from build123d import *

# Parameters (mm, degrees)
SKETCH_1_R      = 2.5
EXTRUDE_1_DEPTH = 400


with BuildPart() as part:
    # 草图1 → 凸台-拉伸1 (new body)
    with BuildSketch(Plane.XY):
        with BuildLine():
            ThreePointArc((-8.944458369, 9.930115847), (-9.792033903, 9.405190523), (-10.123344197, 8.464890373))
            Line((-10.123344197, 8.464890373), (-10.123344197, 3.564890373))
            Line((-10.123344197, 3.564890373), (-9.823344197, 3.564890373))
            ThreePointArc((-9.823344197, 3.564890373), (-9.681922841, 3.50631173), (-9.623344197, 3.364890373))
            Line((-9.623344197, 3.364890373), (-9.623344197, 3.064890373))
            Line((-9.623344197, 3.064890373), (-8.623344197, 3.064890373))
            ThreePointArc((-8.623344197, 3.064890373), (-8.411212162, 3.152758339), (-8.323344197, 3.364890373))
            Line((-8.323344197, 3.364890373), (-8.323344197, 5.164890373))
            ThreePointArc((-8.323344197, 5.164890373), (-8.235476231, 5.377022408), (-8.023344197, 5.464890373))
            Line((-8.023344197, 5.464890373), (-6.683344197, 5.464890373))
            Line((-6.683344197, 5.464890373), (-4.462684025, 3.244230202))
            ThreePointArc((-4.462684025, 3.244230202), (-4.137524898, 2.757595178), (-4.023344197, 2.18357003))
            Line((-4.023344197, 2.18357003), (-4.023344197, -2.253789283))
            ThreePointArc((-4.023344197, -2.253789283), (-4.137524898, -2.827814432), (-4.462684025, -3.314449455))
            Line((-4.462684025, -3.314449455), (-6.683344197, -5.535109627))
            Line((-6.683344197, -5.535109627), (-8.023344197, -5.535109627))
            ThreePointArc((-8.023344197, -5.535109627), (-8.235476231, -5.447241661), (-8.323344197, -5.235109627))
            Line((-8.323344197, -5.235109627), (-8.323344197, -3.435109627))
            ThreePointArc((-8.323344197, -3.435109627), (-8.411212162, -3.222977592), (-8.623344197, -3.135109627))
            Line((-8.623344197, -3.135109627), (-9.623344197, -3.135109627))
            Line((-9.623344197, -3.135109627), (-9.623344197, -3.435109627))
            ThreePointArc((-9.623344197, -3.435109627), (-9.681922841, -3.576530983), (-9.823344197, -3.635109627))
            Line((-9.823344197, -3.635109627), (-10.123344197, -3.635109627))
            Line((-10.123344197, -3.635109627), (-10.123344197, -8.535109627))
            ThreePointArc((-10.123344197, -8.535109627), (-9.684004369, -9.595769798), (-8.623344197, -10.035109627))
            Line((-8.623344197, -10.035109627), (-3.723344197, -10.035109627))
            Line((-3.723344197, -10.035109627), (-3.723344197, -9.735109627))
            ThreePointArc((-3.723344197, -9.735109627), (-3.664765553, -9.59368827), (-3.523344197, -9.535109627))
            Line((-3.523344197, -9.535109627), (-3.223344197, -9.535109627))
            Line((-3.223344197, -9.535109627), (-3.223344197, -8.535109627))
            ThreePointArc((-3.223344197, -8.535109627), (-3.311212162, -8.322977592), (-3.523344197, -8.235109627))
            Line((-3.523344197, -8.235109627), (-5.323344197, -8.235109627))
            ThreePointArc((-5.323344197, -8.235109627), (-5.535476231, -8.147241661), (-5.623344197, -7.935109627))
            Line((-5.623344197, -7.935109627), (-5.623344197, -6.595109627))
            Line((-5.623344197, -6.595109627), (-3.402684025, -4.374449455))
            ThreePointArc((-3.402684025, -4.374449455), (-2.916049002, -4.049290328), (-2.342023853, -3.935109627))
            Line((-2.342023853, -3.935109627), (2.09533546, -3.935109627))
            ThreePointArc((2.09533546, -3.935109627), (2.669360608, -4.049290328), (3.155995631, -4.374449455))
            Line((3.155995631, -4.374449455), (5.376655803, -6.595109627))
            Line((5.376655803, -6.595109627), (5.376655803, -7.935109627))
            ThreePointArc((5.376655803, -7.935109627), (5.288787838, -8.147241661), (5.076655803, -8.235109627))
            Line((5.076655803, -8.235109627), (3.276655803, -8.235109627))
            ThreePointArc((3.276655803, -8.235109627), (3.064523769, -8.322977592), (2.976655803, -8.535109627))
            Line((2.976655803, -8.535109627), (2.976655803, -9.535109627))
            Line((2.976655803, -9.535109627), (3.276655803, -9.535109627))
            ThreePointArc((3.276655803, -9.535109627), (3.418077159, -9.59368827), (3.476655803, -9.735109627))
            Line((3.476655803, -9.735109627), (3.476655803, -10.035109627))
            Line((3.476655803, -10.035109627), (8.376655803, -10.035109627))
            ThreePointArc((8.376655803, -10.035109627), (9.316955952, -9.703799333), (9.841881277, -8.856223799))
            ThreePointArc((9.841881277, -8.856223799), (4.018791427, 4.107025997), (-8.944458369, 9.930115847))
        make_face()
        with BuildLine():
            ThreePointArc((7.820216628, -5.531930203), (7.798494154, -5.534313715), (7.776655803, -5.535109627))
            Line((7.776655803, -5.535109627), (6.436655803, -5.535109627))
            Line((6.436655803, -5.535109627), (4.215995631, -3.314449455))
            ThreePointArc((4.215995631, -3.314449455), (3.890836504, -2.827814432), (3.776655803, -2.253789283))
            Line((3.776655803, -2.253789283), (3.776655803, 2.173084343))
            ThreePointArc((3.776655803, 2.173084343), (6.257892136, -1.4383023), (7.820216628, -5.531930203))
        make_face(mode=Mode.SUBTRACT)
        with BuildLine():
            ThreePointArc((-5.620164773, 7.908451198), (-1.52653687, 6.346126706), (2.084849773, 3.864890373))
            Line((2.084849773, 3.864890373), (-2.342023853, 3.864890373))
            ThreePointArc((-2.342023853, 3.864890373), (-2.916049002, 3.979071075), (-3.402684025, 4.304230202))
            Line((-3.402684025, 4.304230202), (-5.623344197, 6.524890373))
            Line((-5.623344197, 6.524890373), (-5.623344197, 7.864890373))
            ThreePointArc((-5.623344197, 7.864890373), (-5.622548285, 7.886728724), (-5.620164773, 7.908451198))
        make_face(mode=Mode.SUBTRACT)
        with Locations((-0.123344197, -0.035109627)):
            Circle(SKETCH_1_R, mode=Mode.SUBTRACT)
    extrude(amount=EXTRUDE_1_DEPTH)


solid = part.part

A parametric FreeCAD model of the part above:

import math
import FreeCAD as App
import Part
import Sketcher
Q = App.Units.Quantity

doc = App.newDocument("Part")
body = doc.addObject("PartDesign::Body", "Body")

# Sketch on XY plane
sketch1 = body.newObject("Sketcher::SketchObject", "Sketch")
sketch1.AttachmentSupport = (doc.getObject("XY_Plane"), [""])
sketch1.MapMode = "FlatFace"
sketch1.addGeometry(Part.ArcOfCircle(Part.Circle(App.Vector(-8.623, 8.465, 0), App.Vector(0, 0, 1), 1.5), math.radians(102), math.radians(180)), False)
sketch1.addGeometry(Part.LineSegment(App.Vector(-10.123, 8.465, 0), App.Vector(-10.123, 3.565, 0)), False)
sketch1.addGeometry(Part.LineSegment(App.Vector(-10.123, 3.565, 0), App.Vector(-9.823, 3.565, 0)), False)
sketch1.addGeometry(Part.ArcOfCircle(Part.Circle(App.Vector(-9.823, 3.365, 0), App.Vector(0, 0, 1), 0.2), math.radians(0), math.radians(90)), False)
sketch1.addGeometry(Part.LineSegment(App.Vector(-9.623, 3.365, 0), App.Vector(-9.623, 3.065, 0)), False)
sketch1.addGeometry(Part.LineSegment(App.Vector(-9.623, 3.065, 0), App.Vector(-8.623, 3.065, 0)), False)
sketch1.addGeometry(Part.ArcOfCircle(Part.Circle(App.Vector(-8.623, 3.365, 0), App.Vector(0, 0, 1), 0.3), math.radians(-90), math.radians(0)), False)
sketch1.addGeometry(Part.LineSegment(App.Vector(-8.323, 3.365, 0), App.Vector(-8.323, 5.165, 0)), False)
sketch1.addGeometry(Part.ArcOfCircle(Part.Circle(App.Vector(-8.023, 5.165, 0), App.Vector(0, 0, 1), 0.3), math.radians(90), math.radians(180)), False)
sketch1.addGeometry(Part.LineSegment(App.Vector(-8.023, 5.465, 0), App.Vector(-6.683, 5.465, 0)), False)
sketch1.addGeometry(Part.LineSegment(App.Vector(-6.683, 5.465, 0), App.Vector(-4.463, 3.244, 0)), False)
sketch1.addGeometry(Part.ArcOfCircle(Part.Circle(App.Vector(-5.523, 2.184, 0), App.Vector(0, 0, 1), 1.5), math.radians(0), math.radians(45)), False)
sketch1.addGeometry(Part.LineSegment(App.Vector(-4.023, 2.184, 0), App.Vector(-4.023, -2.254, 0)), False)
sketch1.addGeometry(Part.ArcOfCircle(Part.Circle(App.Vector(-5.523, -2.254, 0), App.Vector(0, 0, 1), 1.5), math.radians(-45), math.radians(0)), False)
sketch1.addGeometry(Part.LineSegment(App.Vector(-4.463, -3.314, 0), App.Vector(-6.683, -5.535, 0)), False)
sketch1.addGeometry(Part.LineSegment(App.Vector(-6.683, -5.535, 0), App.Vector(-8.023, -5.535, 0)), False)
sketch1.addGeometry(Part.ArcOfCircle(Part.Circle(App.Vector(-8.023, -5.235, 0), App.Vector(0, 0, 1), 0.3), math.radians(-180), math.radians(-90)), False)
sketch1.addGeometry(Part.LineSegment(App.Vector(-8.323, -5.235, 0), App.Vector(-8.323, -3.435, 0)), False)
sketch1.addGeometry(Part.ArcOfCircle(Part.Circle(App.Vector(-8.623, -3.435, 0), App.Vector(0, 0, 1), 0.3), math.radians(0), math.radians(90)), False)
sketch1.addGeometry(Part.LineSegment(App.Vector(-8.623, -3.135, 0), App.Vector(-9.623, -3.135, 0)), False)
sketch1.addGeometry(Part.LineSegment(App.Vector(-9.623, -3.135, 0), App.Vector(-9.623, -3.435, 0)), False)
sketch1.addGeometry(Part.ArcOfCircle(Part.Circle(App.Vector(-9.823, -3.435, 0), App.Vector(0, 0, 1), 0.2), math.radians(-90), math.radians(0)), False)
sketch1.addGeometry(Part.LineSegment(App.Vector(-9.823, -3.635, 0), App.Vector(-10.123, -3.635, 0)), False)
sketch1.addGeometry(Part.LineSegment(App.Vector(-10.123, -3.635, 0), App.Vector(-10.123, -8.535, 0)), False)
sketch1.addGeometry(Part.ArcOfCircle(Part.Circle(App.Vector(-8.623, -8.535, 0), App.Vector(0, 0, 1), 1.5), math.radians(-180), math.radians(-90)), False)
sketch1.addGeometry(Part.LineSegment(App.Vector(-8.623, -10.035, 0), App.Vector(-3.723, -10.035, 0)), False)
sketch1.addGeometry(Part.LineSegment(App.Vector(-3.723, -10.035, 0), App.Vector(-3.723, -9.735, 0)), False)
sketch1.addGeometry(Part.ArcOfCircle(Part.Circle(App.Vector(-3.523, -9.735, 0), App.Vector(0, 0, 1), 0.2), math.radians(90), math.radians(180)), False)
sketch1.addGeometry(Part.LineSegment(App.Vector(-3.523, -9.535, 0), App.Vector(-3.223, -9.535, 0)), False)
sketch1.addGeometry(Part.LineSegment(App.Vector(-3.223, -9.535, 0), App.Vector(-3.223, -8.535, 0)), False)
sketch1.addGeometry(Part.ArcOfCircle(Part.Circle(App.Vector(-3.523, -8.535, 0), App.Vector(0, 0, 1), 0.3), math.radians(0), math.radians(90)), False)
sketch1.addGeometry(Part.LineSegment(App.Vector(-3.523, -8.235, 0), App.Vector(-5.323, -8.235, 0)), False)
sketch1.addGeometry(Part.ArcOfCircle(Part.Circle(App.Vector(-5.323, -7.935, 0), App.Vector(0, 0, 1), 0.3), math.radians(-180), math.radians(-90)), False)
sketch1.addGeometry(Part.LineSegment(App.Vector(-5.623, -7.935, 0), App.Vector(-5.623, -6.595, 0)), False)
sketch1.addGeometry(Part.LineSegment(App.Vector(-5.623, -6.595, 0), App.Vector(-3.403, -4.374, 0)), False)
sketch1.addGeometry(Part.ArcOfCircle(Part.Circle(App.Vector(-2.342, -5.435, 0), App.Vector(0, 0, 1), 1.5), math.radians(90), math.radians(135)), False)
sketch1.addGeometry(Part.LineSegment(App.Vector(-2.342, -3.935, 0), App.Vector(2.095, -3.935, 0)), False)
sketch1.addGeometry(Part.ArcOfCircle(Part.Circle(App.Vector(2.095, -5.435, 0), App.Vector(0, 0, 1), 1.5), math.radians(45), math.radians(90)), False)
sketch1.addGeometry(Part.LineSegment(App.Vector(3.156, -4.374, 0), App.Vector(5.377, -6.595, 0)), False)
sketch1.addGeometry(Part.LineSegment(App.Vector(5.377, -6.595, 0), App.Vector(5.377, -7.935, 0)), False)
sketch1.addGeometry(Part.ArcOfCircle(Part.Circle(App.Vector(5.077, -7.935, 0), App.Vector(0, 0, 1), 0.3), math.radians(-90), math.radians(0)), False)
sketch1.addGeometry(Part.LineSegment(App.Vector(5.077, -8.235, 0), App.Vector(3.277, -8.235, 0)), False)
sketch1.addGeometry(Part.ArcOfCircle(Part.Circle(App.Vector(3.277, -8.535, 0), App.Vector(0, 0, 1), 0.3), math.radians(90), math.radians(180)), False)
sketch1.addGeometry(Part.LineSegment(App.Vector(2.977, -8.535, 0), App.Vector(2.977, -9.535, 0)), False)
sketch1.addGeometry(Part.LineSegment(App.Vector(2.977, -9.535, 0), App.Vector(3.277, -9.535, 0)), False)
sketch1.addGeometry(Part.ArcOfCircle(Part.Circle(App.Vector(3.277, -9.735, 0), App.Vector(0, 0, 1), 0.2), math.radians(0), math.radians(90)), False)
sketch1.addGeometry(Part.LineSegment(App.Vector(3.477, -9.735, 0), App.Vector(3.477, -10.035, 0)), False)
sketch1.addGeometry(Part.LineSegment(App.Vector(3.477, -10.035, 0), App.Vector(8.377, -10.035, 0)), False)
sketch1.addGeometry(Part.ArcOfCircle(Part.Circle(App.Vector(8.377, -8.535, 0), App.Vector(0, 0, 1), 1.5), math.radians(-90), math.radians(-12)), False)
sketch1.addGeometry(Part.ArcOfCircle(Part.Circle(App.Vector(-10.123, -10.035, 0), App.Vector(0, 0, 1), 20), math.radians(3), math.radians(87)), False)
sketch1.addGeometry(Part.Circle(App.Vector(-0.123, -0.035, 0), App.Vector(0, 0, 1), 2.5), False)
sketch1.addGeometry(Part.ArcOfCircle(Part.Circle(App.Vector(-10.123, -10.035, 0), App.Vector(0, 0, 1), 18.5), math.radians(14), math.radians(41)), False)
sketch1.addGeometry(Part.ArcOfCircle(Part.Circle(App.Vector(7.777, -5.235, 0), App.Vector(0, 0, 1), 0.3), math.radians(-90), math.radians(-81.65)), False)
sketch1.addGeometry(Part.LineSegment(App.Vector(7.777, -5.535, 0), App.Vector(6.437, -5.535, 0)), False)
sketch1.addGeometry(Part.LineSegment(App.Vector(6.437, -5.535, 0), App.Vector(4.216, -3.314, 0)), False)
sketch1.addGeometry(Part.ArcOfCircle(Part.Circle(App.Vector(5.277, -2.254, 0), App.Vector(0, 0, 1), 1.5), math.radians(180), math.radians(225)), False)
sketch1.addGeometry(Part.LineSegment(App.Vector(3.777, -2.254, 0), App.Vector(3.777, 2.173, 0)), False)
sketch1.addGeometry(Part.ArcOfCircle(Part.Circle(App.Vector(-5.323, 7.865, 0), App.Vector(0, 0, 1), 0.3), math.radians(171.65), math.radians(180)), False)
sketch1.addGeometry(Part.ArcOfCircle(Part.Circle(App.Vector(-10.123, -10.035, 0), App.Vector(0, 0, 1), 18.5), math.radians(49), math.radians(76)), False)
sketch1.addGeometry(Part.LineSegment(App.Vector(2.085, 3.865, 0), App.Vector(-2.342, 3.865, 0)), False)
sketch1.addGeometry(Part.ArcOfCircle(Part.Circle(App.Vector(-2.342, 5.365, 0), App.Vector(0, 0, 1), 1.5), math.radians(-135), math.radians(-90)), False)
sketch1.addGeometry(Part.LineSegment(App.Vector(-3.403, 4.304, 0), App.Vector(-5.623, 6.525, 0)), False)
sketch1.addGeometry(Part.LineSegment(App.Vector(-5.623, 6.525, 0), App.Vector(-5.623, 7.865, 0)), False)
sketch1.addConstraint(Sketcher.Constraint("Tangent", 0, 2, 1, 1))
sketch1.addConstraint(Sketcher.Constraint("Coincident", 1, 2, 2, 1))
sketch1.addConstraint(Sketcher.Constraint("Tangent", 2, 2, 3, 2))
sketch1.addConstraint(Sketcher.Constraint("Tangent", 3, 1, 4, 1))
sketch1.addConstraint(Sketcher.Constraint("Coincident", 4, 2, 5, 1))
sketch1.addConstraint(Sketcher.Constraint("Tangent", 5, 2, 6, 1))
sketch1.addConstraint(Sketcher.Constraint("Tangent", 6, 2, 7, 1))
sketch1.addConstraint(Sketcher.Constraint("Tangent", 7, 2, 8, 2))
sketch1.addConstraint(Sketcher.Constraint("Tangent", 8, 1, 9, 1))
sketch1.addConstraint(Sketcher.Constraint("Coincident", 9, 2, 10, 1))
sketch1.addConstraint(Sketcher.Constraint("Tangent", 10, 2, 11, 2))
sketch1.addConstraint(Sketcher.Constraint("Tangent", 11, 1, 12, 1))
sketch1.addConstraint(Sketcher.Constraint("Tangent", 12, 2, 13, 2))
sketch1.addConstraint(Sketcher.Constraint("Tangent", 13, 1, 14, 1))
sketch1.addConstraint(Sketcher.Constraint("Coincident", 14, 2, 15, 1))
sketch1.addConstraint(Sketcher.Constraint("Tangent", 15, 2, 16, 2))
sketch1.addConstraint(Sketcher.Constraint("Tangent", 16, 1, 17, 1))
sketch1.addConstraint(Sketcher.Constraint("Tangent", 17, 2, 18, 1))
sketch1.addConstraint(Sketcher.Constraint("Tangent", 18, 2, 19, 1))
sketch1.addConstraint(Sketcher.Constraint("Coincident", 19, 2, 20, 1))
sketch1.addConstraint(Sketcher.Constraint("Tangent", 20, 2, 21, 2))
sketch1.addConstraint(Sketcher.Constraint("Tangent", 21, 1, 22, 1))
sketch1.addConstraint(Sketcher.Constraint("Coincident", 22, 2, 23, 1))
sketch1.addConstraint(Sketcher.Constraint("Tangent", 23, 2, 24, 1))
sketch1.addConstraint(Sketcher.Constraint("Tangent", 24, 2, 25, 1))
sketch1.addConstraint(Sketcher.Constraint("Coincident", 25, 2, 26, 1))
sketch1.addConstraint(Sketcher.Constraint("Tangent", 26, 2, 27, 2))
sketch1.addConstraint(Sketcher.Constraint("Tangent", 27, 1, 28, 1))
sketch1.addConstraint(Sketcher.Constraint("Coincident", 28, 2, 29, 1))
sketch1.addConstraint(Sketcher.Constraint("Tangent", 29, 2, 30, 1))
sketch1.addConstraint(Sketcher.Constraint("Tangent", 30, 2, 31, 1))
sketch1.addConstraint(Sketcher.Constraint("Tangent", 31, 2, 32, 2))
sketch1.addConstraint(Sketcher.Constraint("Tangent", 32, 1, 33, 1))
sketch1.addConstraint(Sketcher.Constraint("Coincident", 33, 2, 34, 1))
sketch1.addConstraint(Sketcher.Constraint("Tangent", 34, 2, 35, 2))
sketch1.addConstraint(Sketcher.Constraint("Tangent", 35, 1, 36, 1))
sketch1.addConstraint(Sketcher.Constraint("Tangent", 36, 2, 37, 2))
sketch1.addConstraint(Sketcher.Constraint("Tangent", 37, 1, 38, 1))
sketch1.addConstraint(Sketcher.Constraint("Coincident", 38, 2, 39, 1))
sketch1.addConstraint(Sketcher.Constraint("Tangent", 39, 2, 40, 2))
sketch1.addConstraint(Sketcher.Constraint("Tangent", 40, 1, 41, 1))
sketch1.addConstraint(Sketcher.Constraint("Tangent", 41, 2, 42, 1))
sketch1.addConstraint(Sketcher.Constraint("Tangent", 42, 2, 43, 1))
sketch1.addConstraint(Sketcher.Constraint("Coincident", 43, 2, 44, 1))
sketch1.addConstraint(Sketcher.Constraint("Tangent", 44, 2, 45, 2))
sketch1.addConstraint(Sketcher.Constraint("Tangent", 45, 1, 46, 1))
sketch1.addConstraint(Sketcher.Constraint("Coincident", 46, 2, 47, 1))
sketch1.addConstraint(Sketcher.Constraint("Tangent", 47, 2, 48, 1))
sketch1.addConstraint(Sketcher.Constraint("Coincident", 48, 2, 49, 1))
sketch1.addConstraint(Sketcher.Constraint("Coincident", 49, 2, 0, 1))
sketch1.addConstraint(Sketcher.Constraint("Coincident", 51, 1, 52, 2))
sketch1.addConstraint(Sketcher.Constraint("Tangent", 52, 1, 53, 1))
sketch1.addConstraint(Sketcher.Constraint("Coincident", 53, 2, 54, 1))
sketch1.addConstraint(Sketcher.Constraint("Tangent", 54, 2, 55, 2))
sketch1.addConstraint(Sketcher.Constraint("Tangent", 55, 1, 56, 1))
sketch1.addConstraint(Sketcher.Constraint("Coincident", 56, 2, 51, 2))
sketch1.addConstraint(Sketcher.Constraint("Coincident", 57, 1, 58, 2))
sketch1.addConstraint(Sketcher.Constraint("Coincident", 58, 1, 59, 1))
sketch1.addConstraint(Sketcher.Constraint("Tangent", 59, 2, 60, 2))
sketch1.addConstraint(Sketcher.Constraint("Tangent", 60, 1, 61, 1))
sketch1.addConstraint(Sketcher.Constraint("Coincident", 61, 2, 62, 1))
sketch1.addConstraint(Sketcher.Constraint("Tangent", 62, 2, 57, 2))
sketch1.addConstraint(Sketcher.Constraint("Vertical", 1))
sketch1.addConstraint(Sketcher.Constraint("Horizontal", 2))
sketch1.addConstraint(Sketcher.Constraint("Vertical", 4))
sketch1.addConstraint(Sketcher.Constraint("Horizontal", 5))
sketch1.addConstraint(Sketcher.Constraint("Vertical", 7))
sketch1.addConstraint(Sketcher.Constraint("Horizontal", 9))
sketch1.addConstraint(Sketcher.Constraint("Vertical", 12))
sketch1.addConstraint(Sketcher.Constraint("Horizontal", 15))
sketch1.addConstraint(Sketcher.Constraint("Vertical", 17))
sketch1.addConstraint(Sketcher.Constraint("Horizontal", 19))
sketch1.addConstraint(Sketcher.Constraint("Vertical", 20))
sketch1.addConstraint(Sketcher.Constraint("Horizontal", 22))
sketch1.addConstraint(Sketcher.Constraint("Vertical", 23))
sketch1.addConstraint(Sketcher.Constraint("Horizontal", 25))
sketch1.addConstraint(Sketcher.Constraint("Vertical", 26))
sketch1.addConstraint(Sketcher.Constraint("Horizontal", 28))
sketch1.addConstraint(Sketcher.Constraint("Vertical", 29))
sketch1.addConstraint(Sketcher.Constraint("Horizontal", 31))
sketch1.addConstraint(Sketcher.Constraint("Vertical", 33))
sketch1.addConstraint(Sketcher.Constraint("Horizontal", 36))
sketch1.addConstraint(Sketcher.Constraint("Vertical", 39))
sketch1.addConstraint(Sketcher.Constraint("Horizontal", 41))
sketch1.addConstraint(Sketcher.Constraint("Vertical", 43))
sketch1.addConstraint(Sketcher.Constraint("Horizontal", 44))
sketch1.addConstraint(Sketcher.Constraint("Vertical", 46))
sketch1.addConstraint(Sketcher.Constraint("Horizontal", 47))
sketch1.addConstraint(Sketcher.Constraint("Horizontal", 53))
sketch1.addConstraint(Sketcher.Constraint("Vertical", 56))
sketch1.addConstraint(Sketcher.Constraint("Horizontal", 59))
sketch1.addConstraint(Sketcher.Constraint("Vertical", 62))
sketch1.addConstraint(Sketcher.Constraint("Coincident", 51, 3, 49, 3))
sketch1.addConstraint(Sketcher.Constraint("Coincident", 58, 3, 49, 3))
sketch1.addConstraint(Sketcher.Constraint("Equal", 6, 8))
sketch1.addConstraint(Sketcher.Constraint("Equal", 0, 11))
sketch1.addConstraint(Sketcher.Constraint("Equal", 11, 13))
sketch1.addConstraint(Sketcher.Constraint("Equal", 8, 16))
sketch1.addConstraint(Sketcher.Constraint("Equal", 16, 18))
sketch1.addConstraint(Sketcher.Constraint("Equal", 3, 21))
sketch1.addConstraint(Sketcher.Constraint("Equal", 13, 24))
sketch1.addConstraint(Sketcher.Constraint("Equal", 21, 27))
sketch1.addConstraint(Sketcher.Constraint("Equal", 18, 30))
sketch1.addConstraint(Sketcher.Constraint("Equal", 30, 32))
sketch1.addConstraint(Sketcher.Constraint("Equal", 24, 35))
sketch1.addConstraint(Sketcher.Constraint("Equal", 35, 37))
sketch1.addConstraint(Sketcher.Constraint("Equal", 32, 40))
sketch1.addConstraint(Sketcher.Constraint("Equal", 40, 42))
sketch1.addConstraint(Sketcher.Constraint("Equal", 27, 45))
sketch1.addConstraint(Sketcher.Constraint("Equal", 37, 48))
sketch1.addConstraint(Sketcher.Constraint("Equal", 42, 52))
sketch1.addConstraint(Sketcher.Constraint("Equal", 48, 55))
sketch1.addConstraint(Sketcher.Constraint("Equal", 52, 57))
sketch1.addConstraint(Sketcher.Constraint("Equal", 51, 58))
sketch1.addConstraint(Sketcher.Constraint("Equal", 55, 60))
sketch1.addConstraint(Sketcher.Constraint("Perpendicular", 10, 14))
sketch1.addConstraint(Sketcher.Constraint("Parallel", 14, 34))
sketch1.addConstraint(Sketcher.Constraint("Perpendicular", 34, 38))
sketch1.addConstraint(Sketcher.Constraint("Parallel", 38, 54))
sketch1.addConstraint(Sketcher.Constraint("Parallel", 54, 61))
sketch1.addConstraint(Sketcher.Constraint("Horizontal", 3, 3, 6, 3))
sketch1.addConstraint(Sketcher.Constraint("Horizontal", 18, 3, 21, 3))
sketch1.addConstraint(Sketcher.Constraint("Horizontal", 24, 3, 30, 3))
sketch1.addConstraint(Sketcher.Constraint("Horizontal", 32, 3, 40, 3))
sketch1.addConstraint(Sketcher.Constraint("Horizontal", 27, 3, 45, 3))
sketch1.addConstraint(Sketcher.Constraint("Horizontal", 42, 3, 48, 3))
sketch1.addConstraint(Sketcher.Constraint("Horizontal", 16, 3, 52, 3))
sketch1.addConstraint(Sketcher.Constraint("Horizontal", 13, 3, 55, 3))
sketch1.addConstraint(Sketcher.Constraint("Horizontal", 58, 3, 24, 2))
sketch1.addConstraint(Sketcher.Constraint("Horizontal", 34, 2, 37, 1))
sketch1.addConstraint(Sketcher.Constraint("Horizontal", 33, 2, 38, 2))
sketch1.addConstraint(Sketcher.Constraint("Vertical", 0, 3, 6, 3))
sketch1.addConstraint(Sketcher.Constraint("Vertical", 8, 3, 16, 3))
sketch1.addConstraint(Sketcher.Constraint("Vertical", 3, 3, 21, 3))
sketch1.addConstraint(Sketcher.Constraint("Vertical", 18, 3, 24, 3))
sketch1.addConstraint(Sketcher.Constraint("Vertical", 27, 3, 30, 3))
sketch1.addConstraint(Sketcher.Constraint("Vertical", 42, 3, 45, 3))
sketch1.addConstraint(Sketcher.Constraint("Vertical", 32, 3, 57, 3))
sketch1.addConstraint(Sketcher.Constraint("Vertical", 35, 3, 60, 3))
sketch1.addConstraint(Sketcher.Constraint("Vertical", 58, 3, 0, 2))
sketch1.addConstraint(Sketcher.Constraint("Vertical", 9, 2, 14, 2))
sketch1.addConstraint(Sketcher.Constraint("Equal", 22, 28))
sketch1.addConstraint(Sketcher.Constraint("Equal", 31, 41))
sketch1.addConstraint(Sketcher.Constraint("Equal", 25, 47))
sketch1.addConstraint(Sketcher.Constraint("Equal", 15, 53))
sketch1.addConstraint(Sketcher.Constraint("Equal", 47, 1))
sketch1.addConstraint(Sketcher.Constraint("Equal", 41, 7))
sketch1.addConstraint(Sketcher.Constraint("Equal", 36, 12))
sketch1.addConstraint(Sketcher.Constraint("Equal", 7, 17))
sketch1.addConstraint(Sketcher.Constraint("Equal", 1, 23))
sketch1.addConstraint(Sketcher.Constraint("Equal", 20, 26))
sketch1.addConstraint(Sketcher.Constraint("Equal", 53, 33))
sketch1.addConstraint(Sketcher.Constraint("Equal", 59, 56))
sketch1.addConstraint(Sketcher.Constraint("Equal", 39, 62))
sketch1.addConstraint(Sketcher.Constraint("Equal", 14, 34))
sketch1.addConstraint(Sketcher.Constraint("Diameter", 50, Q("5 mm")))
sketch1.addConstraint(Sketcher.Constraint("Radius", 49, Q("20 mm")))
sketch1.addConstraint(Sketcher.Constraint("Radius", 0, Q("1.5 mm")))
sketch1.addConstraint(Sketcher.Constraint("Radius", 3, Q("0.2 mm")))
sketch1.addConstraint(Sketcher.Constraint("Radius", 6, Q("0.3 mm")))
sketch1.addConstraint(Sketcher.Constraint("Radius", 51, Q("18.5 mm")))
sketch1.addConstraint(Sketcher.Constraint("DistanceX", 25, 1, 25, 2, Q("4.9 mm")))
sketch1.addConstraint(Sketcher.Constraint("DistanceX", 31, 2, 31, 1, Q("1.8 mm")))
sketch1.addConstraint(Sketcher.Constraint("DistanceX", 9, 1, 9, 2, Q("1.34 mm")))
sketch1.addConstraint(Sketcher.Constraint("DistanceX", 36, 1, 36, 2, Q("4.437359 mm")))
sketch1.addConstraint(Sketcher.Constraint("DistanceX", 59, 2, 59, 1, Q("4.426874 mm")))
sketch1.addConstraint(Sketcher.Constraint("DistanceY", -1, 1, 0, 3, Q("8.46489 mm")))
sketch1.addConstraint(Sketcher.Constraint("DistanceY", -1, 1, 11, 3, Q("2.18357 mm")))
sketch1.addConstraint(Sketcher.Constraint("DistanceY", 50, 3, -1, 1, Q("0.03511 mm")))
sketch1.addConstraint(Sketcher.Constraint("DistanceX", -1, 1, 48, 2, Q("9.841881 mm")))
sketch1.addConstraint(Sketcher.Constraint("DistanceX", 50, 3, -1, 1, Q("0.123344 mm")))
pad1 = body.newObject("PartDesign::Pad", "Pad")
pad1.Profile = sketch1
pad1.Length = 400

doc.recompute()
